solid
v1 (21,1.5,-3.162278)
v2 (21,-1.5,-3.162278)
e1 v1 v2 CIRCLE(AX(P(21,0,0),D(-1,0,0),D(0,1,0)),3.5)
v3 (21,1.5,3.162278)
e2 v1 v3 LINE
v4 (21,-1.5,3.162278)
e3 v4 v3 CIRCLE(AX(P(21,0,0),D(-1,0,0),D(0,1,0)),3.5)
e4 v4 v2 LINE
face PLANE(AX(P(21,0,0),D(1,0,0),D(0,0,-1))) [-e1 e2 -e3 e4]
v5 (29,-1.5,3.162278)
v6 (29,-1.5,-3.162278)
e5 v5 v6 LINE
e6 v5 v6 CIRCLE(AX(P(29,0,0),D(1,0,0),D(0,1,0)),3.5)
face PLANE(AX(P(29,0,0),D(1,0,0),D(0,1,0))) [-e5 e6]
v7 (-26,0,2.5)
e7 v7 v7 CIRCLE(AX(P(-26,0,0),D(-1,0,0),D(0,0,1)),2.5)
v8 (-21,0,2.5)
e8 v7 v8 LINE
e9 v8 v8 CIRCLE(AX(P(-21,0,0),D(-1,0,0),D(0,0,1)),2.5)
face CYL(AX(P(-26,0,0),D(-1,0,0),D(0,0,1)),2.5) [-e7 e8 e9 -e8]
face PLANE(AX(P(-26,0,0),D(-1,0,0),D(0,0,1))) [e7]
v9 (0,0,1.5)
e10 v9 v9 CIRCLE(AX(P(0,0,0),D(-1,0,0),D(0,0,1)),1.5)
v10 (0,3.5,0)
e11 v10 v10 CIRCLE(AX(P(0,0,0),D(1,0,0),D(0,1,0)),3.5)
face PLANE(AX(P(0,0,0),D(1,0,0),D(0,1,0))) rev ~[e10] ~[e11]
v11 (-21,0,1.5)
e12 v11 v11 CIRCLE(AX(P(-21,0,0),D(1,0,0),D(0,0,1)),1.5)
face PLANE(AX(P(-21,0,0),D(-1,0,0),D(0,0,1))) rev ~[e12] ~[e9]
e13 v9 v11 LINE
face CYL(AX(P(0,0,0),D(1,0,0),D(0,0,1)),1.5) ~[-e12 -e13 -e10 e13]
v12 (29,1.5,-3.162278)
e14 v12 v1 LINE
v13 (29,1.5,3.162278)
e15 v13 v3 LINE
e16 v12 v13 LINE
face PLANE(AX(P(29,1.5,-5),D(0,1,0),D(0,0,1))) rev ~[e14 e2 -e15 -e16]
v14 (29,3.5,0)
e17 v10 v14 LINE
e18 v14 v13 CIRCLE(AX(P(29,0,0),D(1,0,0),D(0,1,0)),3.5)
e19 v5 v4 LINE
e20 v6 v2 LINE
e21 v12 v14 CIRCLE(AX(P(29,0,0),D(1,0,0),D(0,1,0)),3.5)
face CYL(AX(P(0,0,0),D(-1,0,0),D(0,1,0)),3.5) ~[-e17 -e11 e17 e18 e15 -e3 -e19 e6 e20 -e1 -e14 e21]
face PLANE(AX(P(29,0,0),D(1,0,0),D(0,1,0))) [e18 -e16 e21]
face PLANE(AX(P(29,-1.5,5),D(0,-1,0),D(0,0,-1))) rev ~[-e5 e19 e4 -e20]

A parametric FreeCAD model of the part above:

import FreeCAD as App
import Part
import Sketcher
from FreeCAD import Vector

doc = App.newDocument("Part")
body = doc.addObject("PartDesign::Body", "Body")

sketch1 = body.newObject("Sketcher::SketchObject", "Sketch")
sketch1.AttachmentSupport = (doc.getObject("YZ_Plane"), [""])
sketch1.MapMode = "FlatFace"
sketch1.addGeometry(Part.Circle(Vector(0, 0, 0), Vector(0, 0, 1), 3.5), False)
sketch1.addConstraint(Sketcher.Constraint("Coincident", 0, 3, -1, 1))
sketch1.addConstraint(Sketcher.Constraint("Diameter", 0, 7.0))
pad1 = body.newObject("PartDesign::Pad", "Pad")
pad1.Profile = sketch1
pad1.Length = 29

sketch2 = body.newObject("Sketcher::SketchObject", "Sketch001")
sketch2.AttachmentSupport = (doc.getObject("YZ_Plane"), [""])
sketch2.MapMode = "FlatFace"
sketch2.AttachmentOffset = App.Placement(Vector(0, 0, 29), App.Rotation())
sketch2.addGeometry(Part.LineSegment(Vector(1.5, 5, 0), Vector(-1.5, 5, 0)), False)
sketch2.addGeometry(Part.LineSegment(Vector(-1.5, 5, 0), Vector(-1.5, -5, 0)), False)
sketch2.addGeometry(Part.LineSegment(Vector(-1.5, -5, 0), Vector(1.5, -5, 0)), False)
sketch2.addGeometry(Part.LineSegment(Vector(1.5, -5, 0), Vector(1.5, 5, 0)), False)
sketch2.addConstraint(Sketcher.Constraint("Coincident", 0, 2, 1, 1))
sketch2.addConstraint(Sketcher.Constraint("Coincident", 1, 2, 2, 1))
sketch2.addConstraint(Sketcher.Constraint("Coincident", 2, 2, 3, 1))
sketch2.addConstraint(Sketcher.Constraint("Coincident", 3, 2, 0, 1))
sketch2.addConstraint(Sketcher.Constraint("Horizontal", 0))
sketch2.addConstraint(Sketcher.Constraint("Vertical", 1))
sketch2.addConstraint(Sketcher.Constraint("Horizontal", 2))
sketch2.addConstraint(Sketcher.Constraint("Vertical", 3))
sketch2.addConstraint(Sketcher.Constraint("Symmetric", 0, 2, 2, 2, -1, 1))
sketch2.addConstraint(Sketcher.Constraint("DistanceX", 0, 2, 0, 1, 3.0))
sketch2.addConstraint(Sketcher.Constraint("DistanceY", 1, 2, 1, 1, 10.0))
pocket1 = body.newObject("PartDesign::Pocket", "Pocket")
pocket1.Profile = sketch2
pocket1.Length = 8

sketch3 = body.newObject("Sketcher::SketchObject", "Sketch002")
sketch3.AttachmentSupport = (doc.getObject("YZ_Plane"), [""])
sketch3.MapMode = "FlatFace"
sketch3.addGeometry(Part.Circle(Vector(0, 0, 0), Vector(0, 0, 1), 1.5), False)
sketch3.addConstraint(Sketcher.Constraint("Coincident", 0, 3, -1, 1))
sketch3.addConstraint(Sketcher.Constraint("Diameter", 0, 3.0))
pad2 = body.newObject("PartDesign::Pad", "Pad001")
pad2.Profile = sketch3
pad2.Length = 26
pad2.Reversed = True

sketch4 = body.newObject("Sketcher::SketchObject", "Sketch003")
sketch4.AttachmentSupport = (doc.getObject("YZ_Plane"), [""])
sketch4.MapMode = "FlatFace"
sketch4.AttachmentOffset = App.Placement(Vector(0, 0, -26), App.Rotation())
sketch4.addGeometry(Part.Circle(Vector(0, 0, 0), Vector(0, 0, 1), 2.5), False)
sketch4.addConstraint(Sketcher.Constraint("Coincident", 0, 3, -1, 1))
sketch4.addConstraint(Sketcher.Constraint("Diameter", 0, 5.0))
pad3 = body.newObject("PartDesign::Pad", "Pad002")
pad3.Profile = sketch4
pad3.Length = 5

doc.recompute()
